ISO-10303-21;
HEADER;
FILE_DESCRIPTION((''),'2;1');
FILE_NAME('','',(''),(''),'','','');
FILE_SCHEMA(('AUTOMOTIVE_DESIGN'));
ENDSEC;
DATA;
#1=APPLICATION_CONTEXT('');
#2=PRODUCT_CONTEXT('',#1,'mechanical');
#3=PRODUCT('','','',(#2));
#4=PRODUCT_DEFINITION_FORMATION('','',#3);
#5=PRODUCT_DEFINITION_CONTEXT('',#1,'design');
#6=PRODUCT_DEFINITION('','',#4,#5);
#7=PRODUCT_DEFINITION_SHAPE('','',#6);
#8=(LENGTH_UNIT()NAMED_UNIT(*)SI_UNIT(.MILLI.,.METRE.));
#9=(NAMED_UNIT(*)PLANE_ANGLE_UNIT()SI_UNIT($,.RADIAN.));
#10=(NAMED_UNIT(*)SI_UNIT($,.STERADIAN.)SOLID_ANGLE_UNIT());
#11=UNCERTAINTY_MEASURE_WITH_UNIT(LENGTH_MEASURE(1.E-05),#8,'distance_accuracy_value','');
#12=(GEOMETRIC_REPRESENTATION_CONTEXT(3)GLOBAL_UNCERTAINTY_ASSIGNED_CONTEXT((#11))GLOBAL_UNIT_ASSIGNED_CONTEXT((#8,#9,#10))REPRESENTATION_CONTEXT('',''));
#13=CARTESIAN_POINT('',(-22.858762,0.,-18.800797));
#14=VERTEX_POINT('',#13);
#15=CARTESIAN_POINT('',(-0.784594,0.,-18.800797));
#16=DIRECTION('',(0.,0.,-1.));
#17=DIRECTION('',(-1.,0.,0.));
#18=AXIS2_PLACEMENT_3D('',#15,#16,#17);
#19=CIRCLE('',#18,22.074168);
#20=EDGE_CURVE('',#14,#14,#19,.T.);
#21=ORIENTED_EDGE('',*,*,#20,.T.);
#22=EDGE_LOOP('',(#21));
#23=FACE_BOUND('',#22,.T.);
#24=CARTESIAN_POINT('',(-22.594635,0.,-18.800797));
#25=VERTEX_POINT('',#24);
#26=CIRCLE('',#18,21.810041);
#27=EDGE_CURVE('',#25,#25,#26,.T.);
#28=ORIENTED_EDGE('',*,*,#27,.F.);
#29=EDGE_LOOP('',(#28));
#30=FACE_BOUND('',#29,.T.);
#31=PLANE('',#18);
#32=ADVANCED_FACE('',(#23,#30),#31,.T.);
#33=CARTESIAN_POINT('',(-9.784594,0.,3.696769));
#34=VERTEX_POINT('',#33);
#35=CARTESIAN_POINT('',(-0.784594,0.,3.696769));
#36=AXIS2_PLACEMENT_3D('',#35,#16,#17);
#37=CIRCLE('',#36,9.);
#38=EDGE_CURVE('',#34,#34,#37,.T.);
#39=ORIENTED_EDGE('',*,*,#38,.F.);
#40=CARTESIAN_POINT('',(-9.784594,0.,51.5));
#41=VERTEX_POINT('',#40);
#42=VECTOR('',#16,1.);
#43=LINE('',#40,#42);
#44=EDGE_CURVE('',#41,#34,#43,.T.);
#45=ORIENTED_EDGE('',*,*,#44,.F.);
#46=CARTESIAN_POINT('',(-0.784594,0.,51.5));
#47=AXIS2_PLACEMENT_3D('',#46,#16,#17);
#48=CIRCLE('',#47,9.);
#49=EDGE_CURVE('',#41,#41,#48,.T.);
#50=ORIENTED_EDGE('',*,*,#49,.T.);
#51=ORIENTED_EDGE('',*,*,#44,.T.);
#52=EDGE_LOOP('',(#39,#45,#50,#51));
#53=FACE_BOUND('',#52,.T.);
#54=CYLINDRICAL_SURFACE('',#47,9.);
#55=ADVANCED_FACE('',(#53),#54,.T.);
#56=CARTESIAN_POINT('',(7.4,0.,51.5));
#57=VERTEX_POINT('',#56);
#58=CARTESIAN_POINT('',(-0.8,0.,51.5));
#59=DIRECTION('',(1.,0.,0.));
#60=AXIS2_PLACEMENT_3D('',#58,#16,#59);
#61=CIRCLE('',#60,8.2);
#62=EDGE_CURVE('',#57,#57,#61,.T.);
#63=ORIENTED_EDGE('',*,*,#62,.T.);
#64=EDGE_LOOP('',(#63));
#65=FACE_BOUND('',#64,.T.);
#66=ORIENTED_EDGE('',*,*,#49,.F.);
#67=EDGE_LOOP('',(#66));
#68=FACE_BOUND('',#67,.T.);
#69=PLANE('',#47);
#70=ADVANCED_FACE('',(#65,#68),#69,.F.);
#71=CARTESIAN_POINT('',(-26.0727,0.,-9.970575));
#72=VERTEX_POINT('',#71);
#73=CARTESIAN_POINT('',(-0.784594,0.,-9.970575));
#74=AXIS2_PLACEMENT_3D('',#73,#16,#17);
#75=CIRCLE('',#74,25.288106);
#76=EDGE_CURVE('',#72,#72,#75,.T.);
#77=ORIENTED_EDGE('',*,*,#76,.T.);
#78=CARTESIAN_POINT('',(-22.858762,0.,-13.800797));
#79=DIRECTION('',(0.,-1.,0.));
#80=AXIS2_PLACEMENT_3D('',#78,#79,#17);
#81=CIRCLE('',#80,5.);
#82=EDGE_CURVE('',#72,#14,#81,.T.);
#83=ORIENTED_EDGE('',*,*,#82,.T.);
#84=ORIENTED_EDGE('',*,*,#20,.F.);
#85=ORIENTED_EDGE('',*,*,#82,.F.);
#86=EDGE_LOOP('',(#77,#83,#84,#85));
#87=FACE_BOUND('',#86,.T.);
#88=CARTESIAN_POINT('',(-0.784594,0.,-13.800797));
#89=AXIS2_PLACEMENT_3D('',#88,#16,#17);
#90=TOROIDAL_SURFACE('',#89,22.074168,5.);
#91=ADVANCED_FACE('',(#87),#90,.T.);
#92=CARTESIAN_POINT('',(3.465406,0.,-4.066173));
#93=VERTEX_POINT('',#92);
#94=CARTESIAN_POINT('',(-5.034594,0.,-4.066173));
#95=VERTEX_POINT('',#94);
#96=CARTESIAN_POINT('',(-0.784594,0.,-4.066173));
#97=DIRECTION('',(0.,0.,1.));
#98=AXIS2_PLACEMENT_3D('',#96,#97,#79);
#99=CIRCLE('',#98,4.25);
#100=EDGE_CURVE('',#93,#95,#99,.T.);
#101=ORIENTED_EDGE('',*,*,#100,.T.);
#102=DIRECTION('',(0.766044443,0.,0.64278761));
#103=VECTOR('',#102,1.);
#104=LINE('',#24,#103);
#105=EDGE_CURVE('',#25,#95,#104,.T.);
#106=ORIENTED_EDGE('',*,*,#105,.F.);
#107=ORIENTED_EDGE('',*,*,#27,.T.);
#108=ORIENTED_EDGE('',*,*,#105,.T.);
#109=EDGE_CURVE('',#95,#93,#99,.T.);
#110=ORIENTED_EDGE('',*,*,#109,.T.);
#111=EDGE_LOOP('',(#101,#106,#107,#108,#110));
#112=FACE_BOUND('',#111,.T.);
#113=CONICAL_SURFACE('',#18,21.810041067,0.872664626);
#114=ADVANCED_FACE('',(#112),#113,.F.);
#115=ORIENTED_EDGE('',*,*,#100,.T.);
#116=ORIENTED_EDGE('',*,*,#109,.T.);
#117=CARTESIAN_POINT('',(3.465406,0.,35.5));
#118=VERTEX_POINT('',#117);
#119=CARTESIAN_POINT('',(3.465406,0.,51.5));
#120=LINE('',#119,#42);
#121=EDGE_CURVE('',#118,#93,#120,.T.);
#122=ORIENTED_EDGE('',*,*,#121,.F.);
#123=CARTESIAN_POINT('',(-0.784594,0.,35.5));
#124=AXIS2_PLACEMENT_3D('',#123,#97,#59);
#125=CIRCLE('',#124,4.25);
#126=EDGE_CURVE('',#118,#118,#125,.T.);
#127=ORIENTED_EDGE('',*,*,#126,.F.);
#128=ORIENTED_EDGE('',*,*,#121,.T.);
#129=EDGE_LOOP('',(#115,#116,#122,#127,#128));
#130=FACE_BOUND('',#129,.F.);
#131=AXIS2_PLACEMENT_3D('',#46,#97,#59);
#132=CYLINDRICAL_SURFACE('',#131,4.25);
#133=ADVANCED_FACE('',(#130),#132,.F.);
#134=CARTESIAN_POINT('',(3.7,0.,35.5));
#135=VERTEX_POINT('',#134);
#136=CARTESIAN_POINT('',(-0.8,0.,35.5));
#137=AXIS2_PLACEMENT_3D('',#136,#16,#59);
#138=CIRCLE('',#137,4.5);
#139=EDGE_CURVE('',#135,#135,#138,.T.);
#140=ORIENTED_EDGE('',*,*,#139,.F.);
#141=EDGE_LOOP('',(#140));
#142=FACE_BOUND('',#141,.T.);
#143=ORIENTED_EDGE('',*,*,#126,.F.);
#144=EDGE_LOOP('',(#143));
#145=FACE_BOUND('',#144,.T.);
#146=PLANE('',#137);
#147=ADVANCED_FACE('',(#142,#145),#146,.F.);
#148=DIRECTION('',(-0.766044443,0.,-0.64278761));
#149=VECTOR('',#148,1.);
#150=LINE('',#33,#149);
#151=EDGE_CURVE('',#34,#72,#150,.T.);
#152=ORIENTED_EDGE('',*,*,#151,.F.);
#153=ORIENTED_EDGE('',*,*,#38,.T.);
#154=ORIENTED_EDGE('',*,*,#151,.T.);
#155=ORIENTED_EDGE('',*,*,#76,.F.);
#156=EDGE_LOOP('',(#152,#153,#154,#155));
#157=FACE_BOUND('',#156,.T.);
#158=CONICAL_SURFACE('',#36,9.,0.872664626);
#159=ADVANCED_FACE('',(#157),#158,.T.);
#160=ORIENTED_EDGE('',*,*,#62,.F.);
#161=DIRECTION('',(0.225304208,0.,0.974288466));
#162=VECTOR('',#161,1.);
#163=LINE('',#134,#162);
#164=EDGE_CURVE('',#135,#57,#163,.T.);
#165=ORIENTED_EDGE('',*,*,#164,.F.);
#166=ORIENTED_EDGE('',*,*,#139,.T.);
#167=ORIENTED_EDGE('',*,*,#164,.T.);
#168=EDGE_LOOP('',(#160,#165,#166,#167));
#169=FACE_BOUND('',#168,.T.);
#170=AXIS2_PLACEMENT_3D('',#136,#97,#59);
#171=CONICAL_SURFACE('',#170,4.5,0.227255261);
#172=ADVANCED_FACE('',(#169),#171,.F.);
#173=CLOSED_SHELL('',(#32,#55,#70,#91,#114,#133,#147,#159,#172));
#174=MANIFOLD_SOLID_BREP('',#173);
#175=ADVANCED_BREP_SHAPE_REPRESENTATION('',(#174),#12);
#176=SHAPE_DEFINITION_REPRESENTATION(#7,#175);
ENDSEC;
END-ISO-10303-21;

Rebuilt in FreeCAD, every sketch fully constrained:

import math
import FreeCAD as App
import Part
import Sketcher

V = App.Vector
Q = App.Units.Quantity


def edges_at(feature, points):
    """Names of the edges that pass closest to the given points."""
    edges = feature.Shape.Edges
    near = lambda p: min(range(len(edges)), key=lambda i: edges[i].distToShape(Part.Vertex(*p))[0])
    return sorted({f"Edge{near(p) + 1}" for p in points})


def add_polygon(sketch, points):
    """Adds a closed chain of lines whose ends are joined by coincident constraints."""
    first, n = sketch.GeometryCount, len(points)
    for a, b in zip(points, points[1:] + points[:1]):
        sketch.addGeometry(Part.LineSegment(App.Vector(*a, 0), App.Vector(*b, 0)), False)
    for i in range(n):
        sketch.addConstraint(Sketcher.Constraint("Coincident", first + i, 2, first + (i + 1) % n, 1))

doc = App.newDocument("Part")
body = doc.addObject("PartDesign::Body", "Body")

sketch1 = doc.addObject("Sketcher::SketchObject", "Sketch")
body.addObject(sketch1)
sketch1.AttachmentSupport = (doc.XZ_Plane, [""])
sketch1.MapMode = "FlatFace"
sketch1.addGeometry([
    Part.LineSegment(V(-0.8, 51.5, 0), V(-9.8, 51.5, 0)),
    Part.LineSegment(V(-9.8, 51.5, 0), V(-9.8, 3.7, 0)),
    Part.LineSegment(V(-9.8, 3.7, 0), V(-36.6, -18.8, 0)),
    Part.LineSegment(V(-36.6, -18.8, 0), V(-22.6, -18.8, 0)),
    Part.LineSegment(V(-22.6, -18.8, 0), V(-2.6, -2, 0)),
    Part.ArcOfCircle(Part.Circle(V(-5.8, 1.8, 0), V(0, 0, 1), 5), math.radians(-50), math.radians(0)),
    Part.LineSegment(V(-0.8, 1.8, 0), V(-0.8, 51.5, 0)),
], False)
sketch1.addGeometry(Part.LineSegment(V(-0.8, 51.5, 0), V(-0.8, -18.8, 0)), True)
sketch1.addConstraint([
    Sketcher.Constraint("Coincident", 0, 2, 1, 1),
    Sketcher.Constraint("Coincident", 1, 2, 2, 1),
    Sketcher.Constraint("Coincident", 2, 2, 3, 1),
    Sketcher.Constraint("Coincident", 3, 2, 4, 1),
    Sketcher.Constraint("Tangent", 4, 2, 5, 1),
    Sketcher.Constraint("Tangent", 5, 2, 6, 1),
    Sketcher.Constraint("Coincident", 6, 2, 0, 1),
    Sketcher.Constraint("Horizontal", 0),
    Sketcher.Constraint("Vertical", 1),
    Sketcher.Constraint("Horizontal", 3),
    Sketcher.Constraint("Vertical", 6),
    Sketcher.Constraint("Vertical", 7),
    Sketcher.Constraint("Coincident", 7, 1, 6, 2),
    Sketcher.Constraint("Parallel", 2, 4),
    Sketcher.Constraint("Horizontal", 3, 2, 7, 2),
    Sketcher.Constraint("Radius", 5, Q("5 mm")),
    Sketcher.Constraint("DistanceX", 0, 2, 0, 1, Q("9 mm")),
    Sketcher.Constraint("Angle", 2, Q("-140 deg")),
    Sketcher.Constraint("Distance", 2, Q("35 mm")),
    Sketcher.Constraint("DistanceY", -1, 1, 0, 2, Q("51.5 mm")),
    Sketcher.Constraint("DistanceY", 1, 2, 1, 1, Q("47.803231 mm")),
    Sketcher.Constraint("DistanceY", 6, 1, 6, 2, Q("49.668462 mm")),
    Sketcher.Constraint("DistanceX", 2, 2, -1, 1, Q("36.596149 mm")),
])
revolution = doc.addObject("PartDesign::Revolution", "Revolution")
body.addObject(revolution)
revolution.Profile = sketch1
revolution.ReferenceAxis = (sketch1, ["Axis0"])
revolution.Angle = 360
doc.recompute()

fillet = doc.addObject("PartDesign::Fillet", "Fillet")
body.addObject(fillet)
fillet.Base = (revolution, edges_at(revolution, [(35.027, 0, -18.801)]))
fillet.Radius = 5

sketch2 = doc.addObject("Sketcher::SketchObject", "Sketch001")
body.addObject(sketch2)
sketch2.AttachmentSupport = (doc.XY_Plane, [""])
sketch2.MapMode = "FlatFace"
sketch2.AttachmentOffset = App.Placement(V(0, 0, 51.5), App.Rotation())
sketch2.addGeometry(Part.Circle(V(-0.8, 0, 0), V(0, 0, 1), 4.2), False)
sketch2.addConstraint([
    Sketcher.Constraint("PointOnObject", 0, 3, -1),
    Sketcher.Constraint("Diameter", 0, Q("8.5 mm")),
    Sketcher.Constraint("DistanceX", 0, 3, -1, 1, Q("0.784594 mm")),
])
pocket1 = doc.addObject("PartDesign::Pocket", "Pocket")
body.addObject(pocket1)
pocket1.Profile = sketch2
pocket1.Length = 70

sketch3 = doc.addObject("Sketcher::SketchObject", "Sketch002")
body.addObject(sketch3)
sketch3.AttachmentSupport = (doc.XZ_Plane, [""])
sketch3.MapMode = "FlatFace"
add_polygon(sketch3, [(7.4, 51.5), (-0.8, 51.5), (-0.8, 35.5), (3.7, 35.5)])
sketch3.addGeometry(Part.LineSegment(V(-0.8, 51.5, 0), V(-0.8, 35.5, 0)), True)
sketch3.addConstraint([
    Sketcher.Constraint("Horizontal", 0),
    Sketcher.Constraint("Vertical", 1),
    Sketcher.Constraint("Horizontal", 2),
    Sketcher.Constraint("Vertical", 4),
    Sketcher.Constraint("Coincident", 4, 1, 0, 2),
    Sketcher.Constraint("Horizontal", 2, 2, 4, 2),
    Sketcher.Constraint("DistanceY", 1, 2, 1, 1, Q("16 mm")),
    Sketcher.Constraint("DistanceX", 0, 2, 0, 1, Q("8.2 mm")),
    Sketcher.Constraint("DistanceX", 2, 1, 2, 2, Q("4.5 mm")),
    Sketcher.Constraint("DistanceX", 0, 2, -1, 1, Q("0.8 mm")),
    Sketcher.Constraint("DistanceY", -1, 1, 0, 2, Q("51.5 mm")),
])
groove = doc.addObject("PartDesign::Groove", "Groove")
body.addObject(groove)
groove.Profile = sketch3
groove.ReferenceAxis = (sketch3, ["Axis0"])
groove.Angle = 360

doc.recompute()
